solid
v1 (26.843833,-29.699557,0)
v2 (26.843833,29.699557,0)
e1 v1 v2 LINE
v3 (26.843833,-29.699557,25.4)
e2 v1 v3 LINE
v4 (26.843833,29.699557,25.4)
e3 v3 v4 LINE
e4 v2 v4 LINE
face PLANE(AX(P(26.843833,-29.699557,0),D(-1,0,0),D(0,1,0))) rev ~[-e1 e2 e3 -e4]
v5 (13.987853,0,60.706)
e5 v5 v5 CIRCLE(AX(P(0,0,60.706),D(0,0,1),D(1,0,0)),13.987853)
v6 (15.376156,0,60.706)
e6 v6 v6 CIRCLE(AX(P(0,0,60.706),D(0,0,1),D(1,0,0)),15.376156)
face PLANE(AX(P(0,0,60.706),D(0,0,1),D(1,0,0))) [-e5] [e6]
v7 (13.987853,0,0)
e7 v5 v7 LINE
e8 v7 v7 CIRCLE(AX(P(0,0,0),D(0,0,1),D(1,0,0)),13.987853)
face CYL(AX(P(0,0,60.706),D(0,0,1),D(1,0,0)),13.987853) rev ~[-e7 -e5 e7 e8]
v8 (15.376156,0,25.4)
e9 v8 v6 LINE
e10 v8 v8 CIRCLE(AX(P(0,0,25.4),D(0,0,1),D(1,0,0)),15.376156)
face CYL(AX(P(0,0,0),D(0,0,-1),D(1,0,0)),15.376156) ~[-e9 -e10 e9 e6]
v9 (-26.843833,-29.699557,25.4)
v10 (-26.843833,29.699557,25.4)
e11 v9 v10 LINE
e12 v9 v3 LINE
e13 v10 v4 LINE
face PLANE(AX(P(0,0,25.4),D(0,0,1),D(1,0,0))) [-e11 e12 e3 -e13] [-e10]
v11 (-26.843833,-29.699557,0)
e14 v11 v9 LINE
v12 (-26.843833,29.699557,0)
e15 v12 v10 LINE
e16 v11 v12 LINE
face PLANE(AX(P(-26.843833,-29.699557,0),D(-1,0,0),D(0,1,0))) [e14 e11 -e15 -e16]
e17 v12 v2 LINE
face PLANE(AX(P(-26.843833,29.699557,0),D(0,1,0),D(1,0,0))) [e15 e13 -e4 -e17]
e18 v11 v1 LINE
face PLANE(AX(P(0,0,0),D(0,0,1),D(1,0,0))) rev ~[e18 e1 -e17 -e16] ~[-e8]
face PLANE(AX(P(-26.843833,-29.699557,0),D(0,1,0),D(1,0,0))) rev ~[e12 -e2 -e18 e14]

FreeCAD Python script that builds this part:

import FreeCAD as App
import Part
import Sketcher
from FreeCAD import Vector
Q = App.Units.Quantity

doc = App.newDocument("Part")
body = doc.addObject("PartDesign::Body", "Body")

# Sketch on XY plane
sketch1 = body.newObject("Sketcher::SketchObject", "Sketch")
sketch1.AttachmentSupport = (doc.getObject("XY_Plane"), [""])
sketch1.MapMode = "FlatFace"
sketch1.addGeometry([
    Part.LineSegment(Vector(-27, 30, 0), Vector(-27, -30, 0)),  # 0
    Part.LineSegment(Vector(-27, -30, 0), Vector(27, -30, 0)),  # 1
    Part.LineSegment(Vector(27, -30, 0), Vector(27, 30, 0)),  # 2
    Part.LineSegment(Vector(27, 30, 0), Vector(-27, 30, 0)),  # 3
    Part.Circle(Vector(0, 0, 0), Vector(0, 0, 1), 15),  # 4
], False)
sketch1.addConstraint([
    Sketcher.Constraint("Coincident", 0, 2, 1, 1),
    Sketcher.Constraint("Coincident", 1, 2, 2, 1),
    Sketcher.Constraint("Coincident", 2, 2, 3, 1),
    Sketcher.Constraint("Coincident", 3, 2, 0, 1),
    Sketcher.Constraint("Vertical", 0),
    Sketcher.Constraint("Horizontal", 1),
    Sketcher.Constraint("Vertical", 2),
    Sketcher.Constraint("Horizontal", 3),
    Sketcher.Constraint("Coincident", 4, 3, -1, 1),
    Sketcher.Constraint("Symmetric", 0, 2, 2, 2, -1, 1),
    Sketcher.Constraint("Diameter", 4, 30.752312),
    Sketcher.Constraint("DistanceX", 1, 1, 1, 2, 53.687666),
    Sketcher.Constraint("DistanceY", 0, 2, 0, 1, 59.399114),
])
pad1 = body.newObject("PartDesign::Pad", "Pad")
pad1.Profile = sketch1
pad1.Length = Q("1 in")

# Sketch on XY plane
sketch2 = body.newObject("Sketcher::SketchObject", "Sketch001")
sketch2.AttachmentSupport = (doc.getObject("XY_Plane"), [""])
sketch2.MapMode = "FlatFace"
sketch2.addGeometry(Part.Circle(Vector(0, 0, 0), Vector(0, 0, 1), 15), False)
sketch2.addConstraint([
    Sketcher.Constraint("Coincident", 0, 3, -1, 1),
    Sketcher.Constraint("Diameter", 0, 30.752312),
])
pad2 = body.newObject("PartDesign::Pad", "Pad001")
pad2.Profile = sketch2
pad2.Length = Q("2.39 in")

# Sketch on XY plane
sketch3 = body.newObject("Sketcher::SketchObject", "Sketch002")
sketch3.AttachmentSupport = (doc.getObject("XY_Plane"), [""])
sketch3.MapMode = "FlatFace"
sketch3.AttachmentOffset = App.Placement(Vector(0, 0, 2.39 * 25.4), App.Rotation())
sketch3.addGeometry(Part.Circle(Vector(0, 0, 0), Vector(0, 0, 1), 14), False)
sketch3.addConstraint([
    Sketcher.Constraint("Coincident", 0, 3, -1, 1),
    Sketcher.Constraint("Diameter", 0, 27.975706),
])
pocket1 = body.newObject("PartDesign::Pocket", "Pocket")
pocket1.Profile = sketch3
pocket1.Length = Q("3.75 in")

doc.recompute()
